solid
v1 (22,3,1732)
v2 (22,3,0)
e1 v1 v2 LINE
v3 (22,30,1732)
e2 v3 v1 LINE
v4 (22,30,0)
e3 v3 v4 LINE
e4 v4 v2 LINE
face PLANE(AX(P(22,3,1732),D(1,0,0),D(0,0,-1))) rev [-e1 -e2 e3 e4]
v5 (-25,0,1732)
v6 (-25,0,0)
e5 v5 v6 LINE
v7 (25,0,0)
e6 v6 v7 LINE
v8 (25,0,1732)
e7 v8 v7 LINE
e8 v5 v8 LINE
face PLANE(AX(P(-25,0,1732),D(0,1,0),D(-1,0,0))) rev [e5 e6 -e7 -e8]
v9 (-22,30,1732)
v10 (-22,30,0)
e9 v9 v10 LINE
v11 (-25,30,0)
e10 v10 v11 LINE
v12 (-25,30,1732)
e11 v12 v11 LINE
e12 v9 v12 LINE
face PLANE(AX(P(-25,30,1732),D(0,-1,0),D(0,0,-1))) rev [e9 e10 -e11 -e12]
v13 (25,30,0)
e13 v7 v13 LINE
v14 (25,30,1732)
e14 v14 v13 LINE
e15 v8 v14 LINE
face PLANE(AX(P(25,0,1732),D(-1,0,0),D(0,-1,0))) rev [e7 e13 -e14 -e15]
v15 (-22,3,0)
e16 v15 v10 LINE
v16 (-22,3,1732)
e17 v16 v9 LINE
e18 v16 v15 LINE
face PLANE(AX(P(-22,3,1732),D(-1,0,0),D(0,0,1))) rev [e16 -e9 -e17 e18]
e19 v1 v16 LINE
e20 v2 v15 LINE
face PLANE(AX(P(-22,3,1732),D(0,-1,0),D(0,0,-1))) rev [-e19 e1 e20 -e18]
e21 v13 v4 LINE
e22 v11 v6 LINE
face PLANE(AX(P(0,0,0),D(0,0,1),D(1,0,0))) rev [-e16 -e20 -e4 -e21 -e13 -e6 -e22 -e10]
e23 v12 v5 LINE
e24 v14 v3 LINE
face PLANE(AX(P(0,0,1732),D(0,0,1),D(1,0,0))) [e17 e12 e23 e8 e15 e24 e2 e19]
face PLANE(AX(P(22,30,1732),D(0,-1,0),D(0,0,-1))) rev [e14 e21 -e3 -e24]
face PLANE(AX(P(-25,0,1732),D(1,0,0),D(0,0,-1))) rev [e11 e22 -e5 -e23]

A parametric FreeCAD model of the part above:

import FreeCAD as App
import Part
import Sketcher

V = App.Vector

doc = App.newDocument("Part")
body = doc.addObject("PartDesign::Body", "Body")

# Sketch on XY plane
sketch1 = body.newObject("Sketcher::SketchObject", "Sketch")
sketch1.AttachmentSupport = (doc.getObject("XY_Plane"), [""])
sketch1.MapMode = "FlatFace"
sketch1.addGeometry([
    Part.LineSegment(V(-25, 0, 0), V(25, 0, 0)),  # 0
    Part.LineSegment(V(25, 0, 0), V(25, 30, 0)),  # 1
    Part.LineSegment(V(25, 30, 0), V(22, 30, 0)),  # 2
    Part.LineSegment(V(22, 30, 0), V(22, 3, 0)),  # 3
    Part.LineSegment(V(22, 3, 0), V(-22, 3, 0)),  # 4
    Part.LineSegment(V(-22, 3, 0), V(-22, 30, 0)),  # 5
    Part.LineSegment(V(-22, 30, 0), V(-25, 30, 0)),  # 6
    Part.LineSegment(V(-25, 30, 0), V(-25, 0, 0)),  # 7
], False)
sketch1.addConstraint([
    Sketcher.Constraint("Coincident", 0, 2, 1, 1),
    Sketcher.Constraint("Coincident", 1, 2, 2, 1),
    Sketcher.Constraint("Coincident", 2, 2, 3, 1),
    Sketcher.Constraint("Coincident", 3, 2, 4, 1),
    Sketcher.Constraint("Coincident", 4, 2, 5, 1),
    Sketcher.Constraint("Coincident", 5, 2, 6, 1),
    Sketcher.Constraint("Coincident", 6, 2, 7, 1),
    Sketcher.Constraint("Coincident", 7, 2, 0, 1),
    Sketcher.Constraint("Horizontal", 0),
    Sketcher.Constraint("Vertical", 1),
    Sketcher.Constraint("Horizontal", 2),
    Sketcher.Constraint("Vertical", 3),
    Sketcher.Constraint("Horizontal", 4),
    Sketcher.Constraint("Vertical", 5),
    Sketcher.Constraint("Horizontal", 6),
    Sketcher.Constraint("Vertical", 7),
    Sketcher.Constraint("Symmetric", 0, 2, 7, 2, -1, 1),
    Sketcher.Constraint("Symmetric", 2, 2, 5, 2, -2),
    Sketcher.Constraint("DistanceX", 0, 1, 0, 2, 50.0),
    Sketcher.Constraint("DistanceX", 2, 2, 2, 1, 3.0),
    Sketcher.Constraint("DistanceY", 1, 1, 1, 2, 30.0),
    Sketcher.Constraint("DistanceY", 3, 2, 3, 1, 27.0),
])
pad1 = body.newObject("PartDesign::Pad", "Pad")
pad1.Profile = sketch1
pad1.Length = 1732

doc.recompute()
